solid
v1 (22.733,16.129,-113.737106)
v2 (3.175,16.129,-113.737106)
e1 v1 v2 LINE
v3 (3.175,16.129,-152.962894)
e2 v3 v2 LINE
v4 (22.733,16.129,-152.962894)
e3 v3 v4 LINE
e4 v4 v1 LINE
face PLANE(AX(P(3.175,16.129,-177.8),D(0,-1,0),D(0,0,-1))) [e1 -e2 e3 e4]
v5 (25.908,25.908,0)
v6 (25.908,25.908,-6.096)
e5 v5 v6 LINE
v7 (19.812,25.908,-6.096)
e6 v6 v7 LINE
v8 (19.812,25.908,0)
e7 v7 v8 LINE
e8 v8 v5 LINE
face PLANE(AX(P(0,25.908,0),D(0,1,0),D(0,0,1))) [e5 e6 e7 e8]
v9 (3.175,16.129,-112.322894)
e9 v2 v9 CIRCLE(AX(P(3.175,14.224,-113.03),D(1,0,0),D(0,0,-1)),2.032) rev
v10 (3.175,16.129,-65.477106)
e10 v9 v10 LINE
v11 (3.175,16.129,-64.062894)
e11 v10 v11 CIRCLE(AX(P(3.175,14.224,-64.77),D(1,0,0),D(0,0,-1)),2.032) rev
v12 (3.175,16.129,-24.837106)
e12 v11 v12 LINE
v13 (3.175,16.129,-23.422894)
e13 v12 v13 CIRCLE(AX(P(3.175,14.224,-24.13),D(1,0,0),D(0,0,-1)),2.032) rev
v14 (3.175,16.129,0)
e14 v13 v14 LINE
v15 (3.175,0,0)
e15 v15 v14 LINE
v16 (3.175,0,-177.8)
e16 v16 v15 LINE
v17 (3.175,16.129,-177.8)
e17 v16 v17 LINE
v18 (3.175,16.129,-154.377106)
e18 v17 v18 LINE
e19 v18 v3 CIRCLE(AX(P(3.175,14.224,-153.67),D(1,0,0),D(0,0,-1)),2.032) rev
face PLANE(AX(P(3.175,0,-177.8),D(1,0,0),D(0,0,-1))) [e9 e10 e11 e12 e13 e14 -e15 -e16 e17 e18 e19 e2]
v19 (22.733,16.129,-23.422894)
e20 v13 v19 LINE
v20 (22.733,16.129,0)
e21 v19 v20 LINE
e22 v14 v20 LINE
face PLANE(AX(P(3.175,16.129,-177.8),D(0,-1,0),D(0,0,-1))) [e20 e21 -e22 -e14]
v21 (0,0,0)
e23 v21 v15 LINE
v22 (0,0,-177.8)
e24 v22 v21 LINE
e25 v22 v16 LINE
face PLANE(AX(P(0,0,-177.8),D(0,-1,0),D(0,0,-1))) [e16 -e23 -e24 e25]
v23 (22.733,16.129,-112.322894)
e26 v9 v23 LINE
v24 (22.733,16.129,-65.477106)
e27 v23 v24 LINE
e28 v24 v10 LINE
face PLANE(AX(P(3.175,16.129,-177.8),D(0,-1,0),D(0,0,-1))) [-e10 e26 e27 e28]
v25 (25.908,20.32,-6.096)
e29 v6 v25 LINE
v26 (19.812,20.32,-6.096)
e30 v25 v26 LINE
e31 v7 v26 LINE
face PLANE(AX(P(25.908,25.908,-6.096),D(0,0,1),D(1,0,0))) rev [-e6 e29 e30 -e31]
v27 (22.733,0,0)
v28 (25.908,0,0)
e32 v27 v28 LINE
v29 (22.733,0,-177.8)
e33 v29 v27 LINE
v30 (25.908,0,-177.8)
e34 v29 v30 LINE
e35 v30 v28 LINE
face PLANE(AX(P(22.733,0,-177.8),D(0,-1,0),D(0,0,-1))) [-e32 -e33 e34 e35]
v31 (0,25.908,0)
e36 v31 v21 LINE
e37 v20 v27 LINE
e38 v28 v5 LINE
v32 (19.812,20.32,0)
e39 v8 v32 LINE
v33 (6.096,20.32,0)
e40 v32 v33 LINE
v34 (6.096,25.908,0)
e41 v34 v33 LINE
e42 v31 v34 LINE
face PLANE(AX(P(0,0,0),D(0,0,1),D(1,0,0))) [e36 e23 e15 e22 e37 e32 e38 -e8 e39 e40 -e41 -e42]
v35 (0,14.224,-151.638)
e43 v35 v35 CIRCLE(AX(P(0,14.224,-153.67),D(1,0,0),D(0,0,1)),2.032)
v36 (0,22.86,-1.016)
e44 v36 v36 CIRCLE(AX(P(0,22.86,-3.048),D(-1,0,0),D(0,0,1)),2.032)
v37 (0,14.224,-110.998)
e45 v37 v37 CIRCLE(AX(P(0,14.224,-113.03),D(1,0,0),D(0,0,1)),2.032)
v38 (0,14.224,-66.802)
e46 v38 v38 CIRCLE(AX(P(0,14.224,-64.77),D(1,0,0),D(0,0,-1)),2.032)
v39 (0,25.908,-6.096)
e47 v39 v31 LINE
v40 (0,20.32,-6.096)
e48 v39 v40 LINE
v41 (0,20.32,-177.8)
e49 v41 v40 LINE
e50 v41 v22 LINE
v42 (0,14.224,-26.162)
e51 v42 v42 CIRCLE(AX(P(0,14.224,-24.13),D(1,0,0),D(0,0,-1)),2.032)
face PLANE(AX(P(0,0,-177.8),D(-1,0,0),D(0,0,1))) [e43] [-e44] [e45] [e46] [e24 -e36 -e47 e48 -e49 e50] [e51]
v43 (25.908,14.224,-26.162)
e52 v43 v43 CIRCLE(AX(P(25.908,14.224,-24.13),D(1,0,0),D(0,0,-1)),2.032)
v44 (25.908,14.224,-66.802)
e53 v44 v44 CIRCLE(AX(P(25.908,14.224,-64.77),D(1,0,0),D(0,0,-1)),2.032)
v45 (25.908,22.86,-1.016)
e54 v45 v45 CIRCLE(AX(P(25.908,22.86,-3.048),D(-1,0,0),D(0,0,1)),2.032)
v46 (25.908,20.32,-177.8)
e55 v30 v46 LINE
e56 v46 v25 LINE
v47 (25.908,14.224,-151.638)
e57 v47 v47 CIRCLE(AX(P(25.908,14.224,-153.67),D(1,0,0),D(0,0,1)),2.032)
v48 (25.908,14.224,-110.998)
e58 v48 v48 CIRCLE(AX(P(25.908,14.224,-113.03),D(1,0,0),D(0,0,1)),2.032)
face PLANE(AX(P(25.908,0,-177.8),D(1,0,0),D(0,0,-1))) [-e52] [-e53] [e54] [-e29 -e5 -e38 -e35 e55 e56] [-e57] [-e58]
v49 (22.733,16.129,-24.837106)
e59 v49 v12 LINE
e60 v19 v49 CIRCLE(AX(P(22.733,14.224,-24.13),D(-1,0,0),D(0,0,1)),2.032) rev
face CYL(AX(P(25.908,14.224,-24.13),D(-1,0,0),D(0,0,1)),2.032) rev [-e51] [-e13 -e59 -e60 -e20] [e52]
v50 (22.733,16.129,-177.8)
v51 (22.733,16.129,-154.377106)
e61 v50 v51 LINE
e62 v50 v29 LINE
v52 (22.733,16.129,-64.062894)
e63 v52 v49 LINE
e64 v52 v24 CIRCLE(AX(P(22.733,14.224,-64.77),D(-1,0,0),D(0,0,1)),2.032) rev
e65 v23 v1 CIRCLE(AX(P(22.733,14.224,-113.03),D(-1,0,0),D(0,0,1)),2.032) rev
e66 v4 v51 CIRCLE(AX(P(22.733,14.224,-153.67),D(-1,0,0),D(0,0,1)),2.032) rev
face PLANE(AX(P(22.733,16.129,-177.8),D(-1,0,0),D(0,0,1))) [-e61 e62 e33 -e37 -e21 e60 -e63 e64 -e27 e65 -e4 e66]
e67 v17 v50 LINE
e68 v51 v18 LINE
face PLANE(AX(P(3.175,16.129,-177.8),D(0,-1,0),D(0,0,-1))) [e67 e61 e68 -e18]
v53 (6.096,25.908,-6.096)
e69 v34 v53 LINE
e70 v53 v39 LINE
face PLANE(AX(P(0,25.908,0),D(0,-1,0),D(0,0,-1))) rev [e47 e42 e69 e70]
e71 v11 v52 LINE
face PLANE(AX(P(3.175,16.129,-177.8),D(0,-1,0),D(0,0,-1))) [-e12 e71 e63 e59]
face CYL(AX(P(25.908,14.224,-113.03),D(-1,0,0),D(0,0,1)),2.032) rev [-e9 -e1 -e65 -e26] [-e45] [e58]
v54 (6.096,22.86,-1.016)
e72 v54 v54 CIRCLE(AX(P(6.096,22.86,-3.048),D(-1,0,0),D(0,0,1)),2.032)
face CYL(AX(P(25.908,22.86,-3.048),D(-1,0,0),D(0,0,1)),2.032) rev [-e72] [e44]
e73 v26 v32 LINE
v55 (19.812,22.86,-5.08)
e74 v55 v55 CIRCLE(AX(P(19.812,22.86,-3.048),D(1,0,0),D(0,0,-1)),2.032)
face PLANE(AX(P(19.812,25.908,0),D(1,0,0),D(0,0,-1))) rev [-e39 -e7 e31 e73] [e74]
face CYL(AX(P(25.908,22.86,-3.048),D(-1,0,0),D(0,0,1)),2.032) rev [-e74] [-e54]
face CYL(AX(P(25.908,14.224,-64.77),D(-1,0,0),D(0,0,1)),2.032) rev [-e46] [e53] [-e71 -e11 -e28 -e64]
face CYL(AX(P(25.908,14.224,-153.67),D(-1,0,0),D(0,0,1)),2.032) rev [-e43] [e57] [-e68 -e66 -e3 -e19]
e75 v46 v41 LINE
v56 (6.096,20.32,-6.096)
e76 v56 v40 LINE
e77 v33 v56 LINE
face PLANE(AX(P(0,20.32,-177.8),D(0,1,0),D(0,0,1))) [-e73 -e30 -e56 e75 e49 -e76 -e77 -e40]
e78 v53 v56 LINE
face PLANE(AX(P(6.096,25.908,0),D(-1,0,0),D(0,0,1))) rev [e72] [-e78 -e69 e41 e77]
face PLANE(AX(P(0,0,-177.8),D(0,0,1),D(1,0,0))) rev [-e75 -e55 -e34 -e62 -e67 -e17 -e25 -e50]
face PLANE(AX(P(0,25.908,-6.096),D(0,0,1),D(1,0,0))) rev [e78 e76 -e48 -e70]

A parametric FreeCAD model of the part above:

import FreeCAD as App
import Part
import Sketcher
from FreeCAD import Vector
Q = App.Units.Quantity


def add_polygon(sketch, points):
    """Adds a closed chain of lines whose ends are joined by coincident constraints."""
    first, n = sketch.GeometryCount, len(points)
    for a, b in zip(points, points[1:] + points[:1]):
        sketch.addGeometry(Part.LineSegment(App.Vector(*a, 0), App.Vector(*b, 0)), False)
    for i in range(n):
        sketch.addConstraint(Sketcher.Constraint("Coincident", first + i, 2, first + (i + 1) % n, 1))

doc = App.newDocument("Part")
body = doc.addObject("PartDesign::Body", "Body")

sketch1 = body.newObject("Sketcher::SketchObject", "Sketch")
sketch1.AttachmentSupport = (doc.getObject("XY_Plane"), [""])
sketch1.MapMode = "FlatFace"
add_polygon(sketch1, [(0, 20.3), (0, 0), (3.2, 0), (3.2, 16.1), (22.7, 16.1), (22.7, 0), (25.9, 0), (25.9, 20.3)])
sketch1.addConstraint([
    Sketcher.Constraint("Vertical", 0),
    Sketcher.Constraint("Horizontal", 1),
    Sketcher.Constraint("Vertical", 2),
    Sketcher.Constraint("Horizontal", 3),
    Sketcher.Constraint("Vertical", 4),
    Sketcher.Constraint("Horizontal", 5),
    Sketcher.Constraint("Vertical", 6),
    Sketcher.Constraint("Horizontal", 7),
    Sketcher.Constraint("Coincident", 0, 2, -1, 1),
    Sketcher.Constraint("PointOnObject", 4, 2, -1),
    Sketcher.Constraint("Equal", 1, 5),
    Sketcher.Constraint("DistanceY", 0, 2, 0, 1, Q("0.8 in")),
    Sketcher.Constraint("DistanceX", 3, 1, 3, 2, Q("0.77 in")),
    Sketcher.Constraint("DistanceX", 7, 2, 7, 1, Q("1.02 in")),
    Sketcher.Constraint("DistanceY", 2, 1, 2, 2, Q("0.635 in")),
])
pad1 = body.newObject("PartDesign::Pad", "Pad")
pad1.Profile = sketch1
pad1.Length = Q("7 in")
pad1.Reversed = True

sketch2 = body.newObject("Sketcher::SketchObject", "Sketch001")
sketch2.AttachmentSupport = (doc.getObject("YZ_Plane"), [""])
sketch2.MapMode = "FlatFace"
sketch2.addGeometry([
    Part.Circle(Vector(14.2, -24.1, 0), Vector(0, 0, 1), 2),
    Part.Circle(Vector(14.2, -64.8, 0), Vector(0, 0, 1), 2),
    Part.Circle(Vector(14.2, -113, 0), Vector(0, 0, 1), 2),
    Part.Circle(Vector(14.2, -153.7, 0), Vector(0, 0, 1), 2),
], False)
sketch2.addConstraint([
    Sketcher.Constraint("Equal", 0, 1),
    Sketcher.Constraint("Equal", 1, 2),
    Sketcher.Constraint("Equal", 2, 3),
    Sketcher.Constraint("Vertical", 0, 3, 1, 3),
    Sketcher.Constraint("Vertical", 1, 3, 2, 3),
    Sketcher.Constraint("Vertical", 2, 3, 3, 3),
    Sketcher.Constraint("Diameter", 0, Q("0.16 in")),
    Sketcher.Constraint("DistanceY", 1, 3, 0, 3, Q("1.6 in")),
    Sketcher.Constraint("DistanceY", 2, 3, 1, 3, Q("1.9 in")),
    Sketcher.Constraint("DistanceY", 3, 3, 2, 3, Q("1.6 in")),
    Sketcher.Constraint("DistanceX", -1, 1, 0, 3, Q("0.56 in")),
    Sketcher.Constraint("DistanceY", 0, 3, -1, 1, Q("0.95 in")),
])
pocket1 = body.newObject("PartDesign::Pocket", "Pocket")
pocket1.Profile = sketch2
pocket1.Type = "ThroughAll"
pocket1.Reversed = True

sketch3 = body.newObject("Sketcher::SketchObject", "Sketch002")
sketch3.AttachmentSupport = (doc.getObject("XZ_Plane"), [""])
sketch3.MapMode = "FlatFace"
sketch3.AttachmentOffset = App.Placement(Vector(0, 0, -0.8 * 25.4), App.Rotation())
add_polygon(sketch3, [(0, -6), (0, 0), (6, 0), (6, -6)])
add_polygon(sketch3, [(20, -6), (20, 0), (26, 0), (26, -6)])
sketch3.addConstraint([
    Sketcher.Constraint("Vertical", 0),
    Sketcher.Constraint("Horizontal", 1),
    Sketcher.Constraint("Vertical", 2),
    Sketcher.Constraint("Horizontal", 3),
    Sketcher.Constraint("Vertical", 4),
    Sketcher.Constraint("Horizontal", 5),
    Sketcher.Constraint("Vertical", 6),
    Sketcher.Constraint("Horizontal", 7),
    Sketcher.Constraint("Coincident", 0, 2, -1, 1),
    Sketcher.Constraint("PointOnObject", 4, 2, -1),
    Sketcher.Constraint("Horizontal", 3, 2, 6, 2),
    Sketcher.Constraint("Equal", 3, 5),
    Sketcher.Constraint("Equal", 7, 0),
    Sketcher.Constraint("DistanceX", 1, 1, 1, 2, Q("0.24 in")),
    Sketcher.Constraint("DistanceX", -1, 1, 4, 2, Q("0.78 in")),
])
pad2 = body.newObject("PartDesign::Pad", "Pad001")
pad2.Profile = sketch3
pad2.Length = Q("0.22 in")
pad2.Reversed = True

sketch4 = body.newObject("Sketcher::SketchObject", "Sketch003")
sketch4.AttachmentSupport = (doc.getObject("YZ_Plane"), [""])
sketch4.MapMode = "FlatFace"
sketch4.AttachmentOffset = App.Placement(Vector(0, 0, 0.78 * 25.4), App.Rotation())
sketch4.addGeometry(Part.Circle(Vector(22.9, -3, 0), Vector(0, 0, 1), 2), False)
sketch4.addConstraint([
    Sketcher.Constraint("Diameter", 0, Q("0.16 in")),
    Sketcher.Constraint("DistanceX", -1, 1, 0, 3, Q("0.9 in")),
    Sketcher.Constraint("DistanceY", 0, 3, -1, 1, Q("0.12 in")),
])
pocket2 = body.newObject("PartDesign::Pocket", "Pocket001")
pocket2.Profile = sketch4
pocket2.Type = "ThroughAll"
pocket2.Midplane = True

doc.recompute()
